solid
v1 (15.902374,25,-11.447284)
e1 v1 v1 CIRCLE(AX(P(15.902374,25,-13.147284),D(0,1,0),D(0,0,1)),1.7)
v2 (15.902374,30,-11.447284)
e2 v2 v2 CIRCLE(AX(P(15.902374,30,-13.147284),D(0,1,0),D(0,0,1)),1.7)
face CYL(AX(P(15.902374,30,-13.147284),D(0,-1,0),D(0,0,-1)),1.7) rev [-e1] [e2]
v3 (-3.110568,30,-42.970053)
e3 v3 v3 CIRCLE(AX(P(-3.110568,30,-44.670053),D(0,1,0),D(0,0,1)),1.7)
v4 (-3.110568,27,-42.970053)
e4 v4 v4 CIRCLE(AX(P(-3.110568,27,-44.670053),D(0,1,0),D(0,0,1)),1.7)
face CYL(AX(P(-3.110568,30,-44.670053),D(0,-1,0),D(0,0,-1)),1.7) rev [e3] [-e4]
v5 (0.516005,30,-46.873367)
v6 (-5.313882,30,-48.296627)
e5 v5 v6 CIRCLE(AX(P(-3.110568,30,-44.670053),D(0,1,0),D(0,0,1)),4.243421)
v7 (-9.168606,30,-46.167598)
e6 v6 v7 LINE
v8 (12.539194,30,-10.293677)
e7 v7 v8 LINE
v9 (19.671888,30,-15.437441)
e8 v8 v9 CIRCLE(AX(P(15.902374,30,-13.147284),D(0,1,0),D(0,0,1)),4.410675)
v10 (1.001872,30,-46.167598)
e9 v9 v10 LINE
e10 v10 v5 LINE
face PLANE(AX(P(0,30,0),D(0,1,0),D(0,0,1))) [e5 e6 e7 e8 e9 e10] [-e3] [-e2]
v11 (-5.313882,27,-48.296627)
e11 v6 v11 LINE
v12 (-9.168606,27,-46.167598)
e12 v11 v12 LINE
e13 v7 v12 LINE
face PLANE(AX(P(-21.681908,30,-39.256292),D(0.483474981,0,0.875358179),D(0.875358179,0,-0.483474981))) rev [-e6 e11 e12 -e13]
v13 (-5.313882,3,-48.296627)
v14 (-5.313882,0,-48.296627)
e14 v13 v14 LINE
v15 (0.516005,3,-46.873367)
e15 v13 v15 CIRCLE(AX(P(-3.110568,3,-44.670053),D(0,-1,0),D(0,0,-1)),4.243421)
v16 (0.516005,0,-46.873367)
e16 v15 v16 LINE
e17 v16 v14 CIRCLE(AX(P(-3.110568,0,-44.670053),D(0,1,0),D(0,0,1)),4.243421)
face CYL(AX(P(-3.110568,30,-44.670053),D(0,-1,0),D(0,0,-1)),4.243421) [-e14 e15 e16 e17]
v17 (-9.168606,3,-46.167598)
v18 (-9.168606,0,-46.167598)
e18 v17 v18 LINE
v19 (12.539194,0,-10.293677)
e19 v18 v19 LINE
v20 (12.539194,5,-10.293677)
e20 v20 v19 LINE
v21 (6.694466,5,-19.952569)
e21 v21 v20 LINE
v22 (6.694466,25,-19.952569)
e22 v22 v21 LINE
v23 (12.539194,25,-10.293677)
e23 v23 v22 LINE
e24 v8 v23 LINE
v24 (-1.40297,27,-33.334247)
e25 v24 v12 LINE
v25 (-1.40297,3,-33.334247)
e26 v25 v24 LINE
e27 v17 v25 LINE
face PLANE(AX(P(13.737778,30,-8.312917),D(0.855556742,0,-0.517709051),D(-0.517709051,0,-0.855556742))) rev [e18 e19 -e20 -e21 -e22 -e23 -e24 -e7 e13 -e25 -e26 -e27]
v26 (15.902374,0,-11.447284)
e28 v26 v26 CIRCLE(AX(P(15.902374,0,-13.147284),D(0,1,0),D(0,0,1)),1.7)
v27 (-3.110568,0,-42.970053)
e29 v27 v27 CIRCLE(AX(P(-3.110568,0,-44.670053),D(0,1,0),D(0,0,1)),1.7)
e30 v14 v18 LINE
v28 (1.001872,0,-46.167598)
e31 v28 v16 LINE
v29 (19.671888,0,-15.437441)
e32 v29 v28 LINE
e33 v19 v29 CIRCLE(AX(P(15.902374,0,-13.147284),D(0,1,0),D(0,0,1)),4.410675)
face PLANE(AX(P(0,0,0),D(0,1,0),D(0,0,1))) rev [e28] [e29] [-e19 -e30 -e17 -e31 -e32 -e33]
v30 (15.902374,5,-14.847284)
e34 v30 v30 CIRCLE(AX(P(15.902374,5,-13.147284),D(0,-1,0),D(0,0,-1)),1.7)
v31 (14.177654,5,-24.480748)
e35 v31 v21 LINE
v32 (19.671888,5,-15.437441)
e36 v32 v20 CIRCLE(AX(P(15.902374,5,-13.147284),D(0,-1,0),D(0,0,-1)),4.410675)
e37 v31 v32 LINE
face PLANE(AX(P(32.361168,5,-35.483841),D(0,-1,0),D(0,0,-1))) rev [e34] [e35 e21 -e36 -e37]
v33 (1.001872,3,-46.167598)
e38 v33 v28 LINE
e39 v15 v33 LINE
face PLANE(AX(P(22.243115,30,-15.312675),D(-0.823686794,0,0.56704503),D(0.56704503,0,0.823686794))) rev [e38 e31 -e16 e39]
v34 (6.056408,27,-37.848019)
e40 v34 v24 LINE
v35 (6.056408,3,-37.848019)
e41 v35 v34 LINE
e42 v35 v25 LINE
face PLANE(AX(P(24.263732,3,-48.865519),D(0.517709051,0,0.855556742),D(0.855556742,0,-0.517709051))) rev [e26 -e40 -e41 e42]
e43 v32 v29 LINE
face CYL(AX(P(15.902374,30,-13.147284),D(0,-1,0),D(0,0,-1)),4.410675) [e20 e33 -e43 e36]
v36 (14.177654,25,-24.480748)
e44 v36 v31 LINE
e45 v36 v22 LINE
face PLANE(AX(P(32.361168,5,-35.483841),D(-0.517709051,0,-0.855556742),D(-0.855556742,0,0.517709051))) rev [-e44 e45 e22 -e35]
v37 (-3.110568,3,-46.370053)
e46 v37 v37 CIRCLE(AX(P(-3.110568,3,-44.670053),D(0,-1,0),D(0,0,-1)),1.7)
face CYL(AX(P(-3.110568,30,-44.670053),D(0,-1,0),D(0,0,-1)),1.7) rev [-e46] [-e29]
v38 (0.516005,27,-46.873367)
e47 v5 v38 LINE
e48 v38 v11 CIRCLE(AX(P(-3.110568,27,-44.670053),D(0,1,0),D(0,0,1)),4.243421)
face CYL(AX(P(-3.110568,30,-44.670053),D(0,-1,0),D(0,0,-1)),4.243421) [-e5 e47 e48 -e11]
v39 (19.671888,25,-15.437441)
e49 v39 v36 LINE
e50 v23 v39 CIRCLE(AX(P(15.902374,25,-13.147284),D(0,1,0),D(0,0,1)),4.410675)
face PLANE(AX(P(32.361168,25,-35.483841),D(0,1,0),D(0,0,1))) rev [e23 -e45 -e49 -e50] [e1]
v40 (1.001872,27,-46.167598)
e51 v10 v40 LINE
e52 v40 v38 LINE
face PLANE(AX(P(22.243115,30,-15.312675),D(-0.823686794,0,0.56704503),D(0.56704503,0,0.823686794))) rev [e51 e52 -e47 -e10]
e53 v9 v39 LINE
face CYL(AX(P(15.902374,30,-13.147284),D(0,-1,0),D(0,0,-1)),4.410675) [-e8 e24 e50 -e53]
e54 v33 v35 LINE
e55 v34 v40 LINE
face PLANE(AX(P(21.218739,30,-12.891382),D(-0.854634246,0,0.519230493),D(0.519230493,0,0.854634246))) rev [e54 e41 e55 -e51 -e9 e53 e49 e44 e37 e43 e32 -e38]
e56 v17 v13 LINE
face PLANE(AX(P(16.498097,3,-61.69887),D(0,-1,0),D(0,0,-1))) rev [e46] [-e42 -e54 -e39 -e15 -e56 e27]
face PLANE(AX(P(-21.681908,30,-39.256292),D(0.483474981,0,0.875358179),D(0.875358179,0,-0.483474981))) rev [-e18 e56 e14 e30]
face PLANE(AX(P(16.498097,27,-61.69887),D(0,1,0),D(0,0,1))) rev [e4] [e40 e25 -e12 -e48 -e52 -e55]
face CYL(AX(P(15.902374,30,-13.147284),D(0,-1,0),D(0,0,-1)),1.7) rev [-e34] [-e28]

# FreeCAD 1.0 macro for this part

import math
import FreeCAD as App
import Part
import Sketcher
from FreeCAD import Vector

doc = App.newDocument("Part")
body = doc.addObject("PartDesign::Body", "Body")

sketch1 = doc.addObject("Sketcher::SketchObject", "Sketch")
body.addObject(sketch1)
sketch1.AttachmentSupport = (doc.XZ_Plane, [""])
sketch1.MapMode = "FlatFace"
sketch1.addGeometry([
    Part.LineSegment(Vector(-5.3, -48.3, 0), Vector(-9.2, -46.2, 0)),
    Part.LineSegment(Vector(-9.2, -46.2, 0), Vector(11.8, -11.5, 0)),
    Part.LineSegment(Vector(11.8, -11.5, 0), Vector(12.5, -10.3, 0)),
    Part.ArcOfCircle(Part.Circle(Vector(15.9, -13.1, 0), Vector(0, 0, 1), 4.4), math.radians(-31), math.radians(140)),
    Part.LineSegment(Vector(19.7, -15.4, 0), Vector(1, -46.2, 0)),
    Part.LineSegment(Vector(1, -46.2, 0), Vector(0.5, -46.9, 0)),
    Part.ArcOfCircle(Part.Circle(Vector(-3.1, -44.7, 0), Vector(0, 0, 1), 4.2), math.radians(-121), math.radians(-31)),
    Part.Circle(Vector(15.9, -13.1, 0), Vector(0, 0, 1), 1.7),
    Part.Circle(Vector(-3.1, -44.7, 0), Vector(0, 0, 1), 1.7),
], False)
sketch1.addConstraint([
    Sketcher.Constraint("Coincident", 0, 2, 1, 1),
    Sketcher.Constraint("Coincident", 1, 2, 2, 1),
    Sketcher.Constraint("Coincident", 2, 2, 3, 2),
    Sketcher.Constraint("Tangent", 3, 1, 4, 1),
    Sketcher.Constraint("Coincident", 4, 2, 5, 1),
    Sketcher.Constraint("Coincident", 5, 2, 6, 2),
    Sketcher.Constraint("Coincident", 6, 1, 0, 1),
    Sketcher.Constraint("Coincident", 7, 3, 3, 3),
    Sketcher.Constraint("Coincident", 8, 3, 6, 3),
    Sketcher.Constraint("Equal", 7, 8),
    Sketcher.Constraint("Parallel", 1, 2),
    Sketcher.Constraint("Horizontal", 0, 2, 4, 2),
    Sketcher.Constraint("Diameter", 7, 3.4),
    Sketcher.Constraint("Radius", 6, 4.243421),
    Sketcher.Constraint("Radius", 3, 4.410675),
    Sketcher.Constraint("DistanceY", 0, 2, -1, 1, 46.167598),
    Sketcher.Constraint("DistanceX", 4, 2, 3, 3, 14.900502),
    Sketcher.Constraint("Distance", 1, 40.529951),
    Sketcher.Constraint("Distance", 2, 1.400548),
    Sketcher.Constraint("Distance", 5, 0.856841),
    Sketcher.Constraint("DistanceX", 6, 3, -1, 1, 3.110568),
    Sketcher.Constraint("DistanceY", 3, 1, -1, 1, 15.437441),
    Sketcher.Constraint("DistanceY", 6, 3, 3, 3, 31.522769),
    Sketcher.Constraint("DistanceX", 0, 2, 3, 3, 25.070979),
    Sketcher.Constraint("DistanceX", 8, 3, 4, 2, 4.112441),
    Sketcher.Constraint("DistanceY", 6, 1, 0, 2, 2.129028),
])
pad1 = doc.addObject("PartDesign::Pad", "Pad")
body.addObject(pad1)
pad1.Profile = sketch1
pad1.Length = 30
pad1.Reversed = True

sketch2 = doc.addObject("Sketcher::SketchObject", "Sketch001")
body.addObject(sketch2)
sketch2.Placement = App.Placement(Vector(13.737778, 0, -8.312917), App.Rotation(Vector(0.517709051, 0, 0.855556742), Vector(0, 1, 0), Vector(-0.855556742, 0, 0.517709051), "ZXY"))
sketch2.addGeometry([
    Part.LineSegment(Vector(-44, 27, 0), Vector(-44, 3, 0)),
    Part.LineSegment(Vector(-44, 3, 0), Vector(-29, 3, 0)),
    Part.LineSegment(Vector(-29, 3, 0), Vector(-29, 27, 0)),
    Part.LineSegment(Vector(-29, 27, 0), Vector(-44, 27, 0)),
    Part.LineSegment(Vector(-14, 25, 0), Vector(-14, 5, 0)),
    Part.LineSegment(Vector(-14, 5, 0), Vector(1, 5, 0)),
    Part.LineSegment(Vector(1, 5, 0), Vector(1, 25, 0)),
    Part.LineSegment(Vector(1, 25, 0), Vector(-14, 25, 0)),
], False)
sketch2.addConstraint([
    Sketcher.Constraint("Coincident", 0, 2, 1, 1),
    Sketcher.Constraint("Coincident", 1, 2, 2, 1),
    Sketcher.Constraint("Coincident", 2, 2, 3, 1),
    Sketcher.Constraint("Coincident", 3, 2, 0, 1),
    Sketcher.Constraint("Coincident", 4, 2, 5, 1),
    Sketcher.Constraint("Coincident", 5, 2, 6, 1),
    Sketcher.Constraint("Coincident", 6, 2, 7, 1),
    Sketcher.Constraint("Coincident", 7, 2, 4, 1),
    Sketcher.Constraint("Vertical", 0),
    Sketcher.Constraint("Horizontal", 1),
    Sketcher.Constraint("Vertical", 2),
    Sketcher.Constraint("Horizontal", 3),
    Sketcher.Constraint("Vertical", 4),
    Sketcher.Constraint("Horizontal", 5),
    Sketcher.Constraint("Vertical", 6),
    Sketcher.Constraint("Horizontal", 7),
    Sketcher.Constraint("Equal", 3, 5),
    Sketcher.Constraint("DistanceX", 1, 1, 1, 2, 15.0),
    Sketcher.Constraint("DistanceY", 0, 2, 0, 1, 24.0),
    Sketcher.Constraint("DistanceY", 4, 2, 4, 1, 20.0),
    Sketcher.Constraint("DistanceY", -1, 1, 0, 2, 3.0),
    Sketcher.Constraint("DistanceY", -1, 1, 4, 2, 5.0),
    Sketcher.Constraint("DistanceX", 1, 2, 4, 2, 15.640901),
    Sketcher.Constraint("DistanceX", 0, 2, -1, 1, 44.24567),
])
pocket1 = doc.addObject("PartDesign::Pocket", "Pocket")
body.addObject(pocket1)
pocket1.Profile = sketch2
pocket1.Length = 30

doc.recompute()
